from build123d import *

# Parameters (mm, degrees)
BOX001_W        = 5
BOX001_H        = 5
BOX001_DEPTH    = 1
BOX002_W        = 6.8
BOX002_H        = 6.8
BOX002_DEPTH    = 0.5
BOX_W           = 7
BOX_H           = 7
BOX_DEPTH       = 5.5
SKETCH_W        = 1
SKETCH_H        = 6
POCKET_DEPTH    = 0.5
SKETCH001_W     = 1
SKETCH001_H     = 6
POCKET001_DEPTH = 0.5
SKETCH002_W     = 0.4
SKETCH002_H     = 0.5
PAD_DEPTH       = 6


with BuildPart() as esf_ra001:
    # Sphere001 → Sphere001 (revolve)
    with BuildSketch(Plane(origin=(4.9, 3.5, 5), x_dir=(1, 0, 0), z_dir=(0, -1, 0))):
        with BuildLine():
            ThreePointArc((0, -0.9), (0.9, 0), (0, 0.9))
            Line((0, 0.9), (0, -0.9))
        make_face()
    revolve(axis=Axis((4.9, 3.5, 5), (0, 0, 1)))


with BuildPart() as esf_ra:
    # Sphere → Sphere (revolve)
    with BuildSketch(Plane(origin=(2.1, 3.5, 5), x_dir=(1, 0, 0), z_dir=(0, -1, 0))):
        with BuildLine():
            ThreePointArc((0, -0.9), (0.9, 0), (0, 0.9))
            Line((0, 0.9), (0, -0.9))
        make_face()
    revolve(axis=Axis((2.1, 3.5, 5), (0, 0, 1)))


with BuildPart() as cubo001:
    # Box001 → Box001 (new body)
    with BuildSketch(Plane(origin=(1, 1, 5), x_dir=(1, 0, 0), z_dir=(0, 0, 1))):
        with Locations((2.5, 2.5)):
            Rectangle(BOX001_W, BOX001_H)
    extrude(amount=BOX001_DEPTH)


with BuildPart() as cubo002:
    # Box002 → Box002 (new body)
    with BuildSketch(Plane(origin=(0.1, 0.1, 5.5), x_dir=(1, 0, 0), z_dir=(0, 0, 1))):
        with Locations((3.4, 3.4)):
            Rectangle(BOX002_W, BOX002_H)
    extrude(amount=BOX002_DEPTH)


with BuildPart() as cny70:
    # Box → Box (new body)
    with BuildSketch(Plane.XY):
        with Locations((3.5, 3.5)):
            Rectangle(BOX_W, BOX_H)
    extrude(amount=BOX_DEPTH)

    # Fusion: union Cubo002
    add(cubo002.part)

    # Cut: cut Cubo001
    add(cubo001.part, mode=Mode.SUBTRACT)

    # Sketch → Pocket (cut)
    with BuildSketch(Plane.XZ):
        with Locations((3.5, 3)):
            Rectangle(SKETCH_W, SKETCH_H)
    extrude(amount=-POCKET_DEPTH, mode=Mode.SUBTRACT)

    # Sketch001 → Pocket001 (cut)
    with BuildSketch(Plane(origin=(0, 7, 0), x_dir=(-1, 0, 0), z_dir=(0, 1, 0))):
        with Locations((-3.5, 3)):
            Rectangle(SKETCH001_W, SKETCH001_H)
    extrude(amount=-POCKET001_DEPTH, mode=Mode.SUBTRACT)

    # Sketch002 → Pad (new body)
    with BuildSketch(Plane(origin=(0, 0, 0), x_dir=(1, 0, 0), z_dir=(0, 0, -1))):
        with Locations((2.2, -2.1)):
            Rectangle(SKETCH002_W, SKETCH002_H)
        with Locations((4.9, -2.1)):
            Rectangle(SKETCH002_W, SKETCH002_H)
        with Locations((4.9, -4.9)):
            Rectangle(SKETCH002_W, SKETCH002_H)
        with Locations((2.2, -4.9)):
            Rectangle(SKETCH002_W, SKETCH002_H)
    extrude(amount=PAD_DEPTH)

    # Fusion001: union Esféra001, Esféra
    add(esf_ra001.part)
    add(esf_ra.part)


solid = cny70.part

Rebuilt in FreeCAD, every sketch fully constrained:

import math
import FreeCAD as App
import Part
import Sketcher


def add_polygon(sketch, points):
    """Adds a closed chain of lines whose ends are joined by coincident constraints."""
    first, n = sketch.GeometryCount, len(points)
    for a, b in zip(points, points[1:] + points[:1]):
        sketch.addGeometry(Part.LineSegment(App.Vector(*a, 0), App.Vector(*b, 0)), False)
    for i in range(n):
        sketch.addConstraint(Sketcher.Constraint("Coincident", first + i, 2, first + (i + 1) % n, 1))

doc = App.newDocument("Part")
body = doc.addObject("PartDesign::Body", "Body")

# Sketch on XZ plane
sketch1 = body.newObject("Sketcher::SketchObject", "Sketch")
sketch1.AttachmentSupport = (doc.getObject("XZ_Plane"), [""])
sketch1.MapMode = "FlatFace"
sketch1.AttachmentOffset = App.Placement(App.Vector(0, 0, -3.5), App.Rotation())
sketch1.addGeometry([
    Part.ArcOfCircle(Part.Circle(App.Vector(4.9, 5, 0), App.Vector(0, 0, 1), 0.9), math.radians(-90), math.radians(90)),
    Part.LineSegment(App.Vector(4.9, 5.9, 0), App.Vector(4.9, 4.1, 0)),
], False)
sketch1.addGeometry(Part.LineSegment(App.Vector(4.9, 4.1, 0), App.Vector(4.9, 5.9, 0)), True)  # axis
sketch1.addConstraint([
    Sketcher.Constraint("Coincident", 0, 1, 1, 2),
    Sketcher.Constraint("Coincident", 1, 1, 0, 2),
    Sketcher.Constraint("Vertical", 1),
    Sketcher.Constraint("Vertical", 2),
    Sketcher.Constraint("Coincident", 2, 1, 0, 1),
    Sketcher.Constraint("Equal", 1, 2),
    Sketcher.Constraint("Radius", 0, 0.9),
    Sketcher.Constraint("DistanceY", -1, 1, 0, 3, 5.0),
    Sketcher.Constraint("DistanceX", -1, 1, 0, 3, 4.9),
    Sketcher.Constraint("DistanceX", -1, 1, 0, 1, 4.9),
])
revolution = body.newObject("PartDesign::Revolution", "Revolution")
revolution.Profile = sketch1
revolution.ReferenceAxis = (sketch1, ["Axis0"])
revolution.Angle = 360
body2 = doc.addObject("PartDesign::Body", "Body001")

# Sketch on XZ plane
sketch2 = body2.newObject("Sketcher::SketchObject", "Sketch001")
sketch2.AttachmentSupport = (doc.getObject("XZ_Plane001"), [""])
sketch2.MapMode = "FlatFace"
sketch2.AttachmentOffset = App.Placement(App.Vector(0, 0, -3.5), App.Rotation())
sketch2.addGeometry([
    Part.ArcOfCircle(Part.Circle(App.Vector(2.1, 5, 0), App.Vector(0, 0, 1), 0.9), math.radians(-90), math.radians(90)),
    Part.LineSegment(App.Vector(2.1, 5.9, 0), App.Vector(2.1, 4.1, 0)),
], False)
sketch2.addGeometry(Part.LineSegment(App.Vector(2.1, 4.1, 0), App.Vector(2.1, 5.9, 0)), True)  # axis
sketch2.addConstraint([
    Sketcher.Constraint("Coincident", 0, 1, 1, 2),
    Sketcher.Constraint("Coincident", 1, 1, 0, 2),
    Sketcher.Constraint("Vertical", 1),
    Sketcher.Constraint("Vertical", 2),
    Sketcher.Constraint("Coincident", 2, 1, 0, 1),
    Sketcher.Constraint("Equal", 1, 2),
    Sketcher.Constraint("Radius", 0, 0.9),
    Sketcher.Constraint("DistanceY", -1, 1, 0, 3, 5.0),
    Sketcher.Constraint("DistanceX", -1, 1, 0, 3, 2.1),
    Sketcher.Constraint("DistanceX", -1, 1, 0, 1, 2.1),
])
revolution2 = body2.newObject("PartDesign::Revolution", "Revolution001")
revolution2.Profile = sketch2
revolution2.ReferenceAxis = (sketch2, ["Axis0"])
revolution2.Angle = 360
body3 = doc.addObject("PartDesign::Body", "Body002")

# Sketch on XY plane
sketch3 = body3.newObject("Sketcher::SketchObject", "Sketch002")
sketch3.AttachmentSupport = (doc.getObject("XY_Plane002"), [""])
sketch3.MapMode = "FlatFace"
sketch3.AttachmentOffset = App.Placement(App.Vector(0, 0, 5), App.Rotation())
add_polygon(sketch3, [(1, 6), (1, 1), (6, 1), (6, 6)])  # lines 0-3
sketch3.addConstraint([
    Sketcher.Constraint("Vertical", 0),
    Sketcher.Constraint("Horizontal", 1),
    Sketcher.Constraint("Vertical", 2),
    Sketcher.Constraint("Horizontal", 3),
    Sketcher.Constraint("Equal", 3, 0),
    Sketcher.Constraint("DistanceX", 1, 1, 1, 2, 5.0),
    Sketcher.Constraint("DistanceX", -1, 1, 0, 2, 1.0),
    Sketcher.Constraint("DistanceY", -1, 1, 0, 2, 1.0),
])
pad1 = body3.newObject("PartDesign::Pad", "Pad")
pad1.Profile = sketch3
pad1.Length = 1
body4 = doc.addObject("PartDesign::Body", "Body003")

# Sketch on XY plane
sketch4 = body4.newObject("Sketcher::SketchObject", "Sketch003")
sketch4.AttachmentSupport = (doc.getObject("XY_Plane003"), [""])
sketch4.MapMode = "FlatFace"
sketch4.AttachmentOffset = App.Placement(App.Vector(0, 0, 5.5), App.Rotation())
add_polygon(sketch4, [(0, 7), (0, 0), (7, 0), (7, 7)])  # lines 0-3
sketch4.addConstraint([
    Sketcher.Constraint("Vertical", 0),
    Sketcher.Constraint("Horizontal", 1),
    Sketcher.Constraint("Vertical", 2),
    Sketcher.Constraint("Horizontal", 3),
    Sketcher.Constraint("Equal", 3, 0),
    Sketcher.Constraint("DistanceX", 1, 1, 1, 2, 6.8),
    Sketcher.Constraint("DistanceX", -1, 1, 0, 2, 0.1),
    Sketcher.Constraint("DistanceY", -1, 1, 0, 2, 0.1),
])
pad2 = body4.newObject("PartDesign::Pad", "Pad001")
pad2.Profile = sketch4
pad2.Length = 0.5
body5 = doc.addObject("PartDesign::Body", "Body004")

# Sketch on XY plane
sketch5 = body5.newObject("Sketcher::SketchObject", "Sketch004")
sketch5.AttachmentSupport = (doc.getObject("XY_Plane004"), [""])
sketch5.MapMode = "FlatFace"
add_polygon(sketch5, [(0, 7), (0, 0), (7, 0), (7, 7)])  # lines 0-3
sketch5.addConstraint([
    Sketcher.Constraint("Vertical", 0),
    Sketcher.Constraint("Horizontal", 1),
    Sketcher.Constraint("Vertical", 2),
    Sketcher.Constraint("Horizontal", 3),
    Sketcher.Constraint("Coincident", 0, 2, -1, 1),
    Sketcher.Constraint("Equal", 3, 0),
    Sketcher.Constraint("DistanceX", 1, 1, 1, 2, 7.0),
])
pad3 = body5.newObject("PartDesign::Pad", "Pad002")
pad3.Profile = sketch5
pad3.Length = 5.5
doc.recompute()

boolean = body5.newObject("PartDesign::Boolean", "Boolean")
boolean.Type = "Fuse"
boolean.addObjects([body4])
doc.recompute()

boolean2 = body5.newObject("PartDesign::Boolean", "Boolean001")
boolean2.Type = "Cut"
boolean2.addObjects([body3])

# Sketch on XZ plane
sketch6 = body5.newObject("Sketcher::SketchObject", "Sketch005")
sketch6.AttachmentSupport = (doc.getObject("XZ_Plane004"), [""])
sketch6.MapMode = "FlatFace"
add_polygon(sketch6, [(3, 6), (3, 0), (4, 0), (4, 6)])  # lines 0-3
sketch6.addConstraint([
    Sketcher.Constraint("Vertical", 0),
    Sketcher.Constraint("Horizontal", 1),
    Sketcher.Constraint("Vertical", 2),
    Sketcher.Constraint("Horizontal", 3),
    Sketcher.Constraint("PointOnObject", 0, 2, -1),
    Sketcher.Constraint("DistanceX", 1, 1, 1, 2, 1.0),
    Sketcher.Constraint("DistanceY", 0, 2, 0, 1, 6.0),
    Sketcher.Constraint("DistanceX", -1, 1, 0, 2, 3.0),
])
pocket1 = body5.newObject("PartDesign::Pocket", "Pocket")
pocket1.Profile = sketch6
pocket1.Length = 0.5

# Sketch on XZ plane
sketch7 = body5.newObject("Sketcher::SketchObject", "Sketch006")
sketch7.AttachmentSupport = (doc.getObject("XZ_Plane004"), [""])
sketch7.MapMode = "FlatFace"
sketch7.AttachmentOffset = App.Placement(App.Vector(0, 0, -7), App.Rotation())
add_polygon(sketch7, [(4, 6), (4, 0), (3, 0), (3, 6)])  # lines 0-3
sketch7.addConstraint([
    Sketcher.Constraint("Vertical", 0),
    Sketcher.Constraint("Horizontal", 1),
    Sketcher.Constraint("Vertical", 2),
    Sketcher.Constraint("Horizontal", 3),
    Sketcher.Constraint("PointOnObject", 0, 2, -1),
    Sketcher.Constraint("DistanceX", 1, 2, 1, 1, 1.0),
    Sketcher.Constraint("DistanceY", 0, 2, 0, 1, 6.0),
    Sketcher.Constraint("DistanceX", -1, 1, 0, 2, 4.0),
])
pocket2 = body5.newObject("PartDesign::Pocket", "Pocket001")
pocket2.Profile = sketch7
pocket2.Length = 0.5
pocket2.Reversed = True

# Sketch on XY plane
sketch8 = body5.newObject("Sketcher::SketchObject", "Sketch007")
sketch8.AttachmentSupport = (doc.getObject("XY_Plane004"), [""])
sketch8.MapMode = "FlatFace"
add_polygon(sketch8, [(2, 1.85), (2, 2.35), (2.4, 2.35), (2.4, 1.85)])  # lines 0-3
add_polygon(sketch8, [(4.7, 1.85), (4.7, 2.35), (5.1, 2.35), (5.1, 1.85)])  # lines 4-7
add_polygon(sketch8, [(4.7, 4.65), (4.7, 5.15), (5.1, 5.15), (5.1, 4.65)])  # lines 8-11
add_polygon(sketch8, [(2, 4.65), (2, 5.15), (2.4, 5.15), (2.4, 4.65)])  # lines 12-15
sketch8.addConstraint([
    Sketcher.Constraint("Vertical", 0),
    Sketcher.Constraint("Horizontal", 1),
    Sketcher.Constraint("Vertical", 2),
    Sketcher.Constraint("Horizontal", 3),
    Sketcher.Constraint("Vertical", 4),
    Sketcher.Constraint("Horizontal", 5),
    Sketcher.Constraint("Vertical", 6),
    Sketcher.Constraint("Horizontal", 7),
    Sketcher.Constraint("Vertical", 8),
    Sketcher.Constraint("Horizontal", 9),
    Sketcher.Constraint("Vertical", 10),
    Sketcher.Constraint("Horizontal", 11),
    Sketcher.Constraint("Vertical", 12),
    Sketcher.Constraint("Horizontal", 13),
    Sketcher.Constraint("Vertical", 14),
    Sketcher.Constraint("Horizontal", 15),
    Sketcher.Constraint("Horizontal", 1, 2, 4, 2),
    Sketcher.Constraint("Horizontal", 3, 2, 6, 2),
    Sketcher.Constraint("Horizontal", 9, 2, 12, 2),
    Sketcher.Constraint("Horizontal", 11, 2, 14, 2),
    Sketcher.Constraint("Vertical", 7, 2, 8, 2),
    Sketcher.Constraint("Vertical", 6, 2, 9, 2),
    Sketcher.Constraint("Vertical", 3, 2, 12, 2),
    Sketcher.Constraint("Vertical", 2, 2, 13, 2),
    Sketcher.Constraint("Equal", 3, 5),
    Sketcher.Constraint("Equal", 6, 8),
    Sketcher.Constraint("DistanceX", 1, 1, 1, 2, 0.4),
    Sketcher.Constraint("DistanceY", 0, 1, 0, 2, 0.5),
    Sketcher.Constraint("DistanceX", -1, 1, 0, 2, 2.0),
    Sketcher.Constraint("DistanceX", -1, 1, 4, 2, 4.7),
    Sketcher.Constraint("DistanceY", 4, 2, 8, 2, 2.8),
    Sketcher.Constraint("DistanceY", -1, 1, 0, 2, 2.35),
])
pad4 = body5.newObject("PartDesign::Pad", "Pad003")
pad4.Profile = sketch8
pad4.Length = 6
pad4.Reversed = True
doc.recompute()

boolean3 = body5.newObject("PartDesign::Boolean", "Boolean002")
boolean3.Type = "Fuse"
boolean3.addObjects([body])
doc.recompute()

boolean4 = body5.newObject("PartDesign::Boolean", "Boolean003")
boolean4.Type = "Fuse"
boolean4.addObjects([body2])

doc.recompute()
